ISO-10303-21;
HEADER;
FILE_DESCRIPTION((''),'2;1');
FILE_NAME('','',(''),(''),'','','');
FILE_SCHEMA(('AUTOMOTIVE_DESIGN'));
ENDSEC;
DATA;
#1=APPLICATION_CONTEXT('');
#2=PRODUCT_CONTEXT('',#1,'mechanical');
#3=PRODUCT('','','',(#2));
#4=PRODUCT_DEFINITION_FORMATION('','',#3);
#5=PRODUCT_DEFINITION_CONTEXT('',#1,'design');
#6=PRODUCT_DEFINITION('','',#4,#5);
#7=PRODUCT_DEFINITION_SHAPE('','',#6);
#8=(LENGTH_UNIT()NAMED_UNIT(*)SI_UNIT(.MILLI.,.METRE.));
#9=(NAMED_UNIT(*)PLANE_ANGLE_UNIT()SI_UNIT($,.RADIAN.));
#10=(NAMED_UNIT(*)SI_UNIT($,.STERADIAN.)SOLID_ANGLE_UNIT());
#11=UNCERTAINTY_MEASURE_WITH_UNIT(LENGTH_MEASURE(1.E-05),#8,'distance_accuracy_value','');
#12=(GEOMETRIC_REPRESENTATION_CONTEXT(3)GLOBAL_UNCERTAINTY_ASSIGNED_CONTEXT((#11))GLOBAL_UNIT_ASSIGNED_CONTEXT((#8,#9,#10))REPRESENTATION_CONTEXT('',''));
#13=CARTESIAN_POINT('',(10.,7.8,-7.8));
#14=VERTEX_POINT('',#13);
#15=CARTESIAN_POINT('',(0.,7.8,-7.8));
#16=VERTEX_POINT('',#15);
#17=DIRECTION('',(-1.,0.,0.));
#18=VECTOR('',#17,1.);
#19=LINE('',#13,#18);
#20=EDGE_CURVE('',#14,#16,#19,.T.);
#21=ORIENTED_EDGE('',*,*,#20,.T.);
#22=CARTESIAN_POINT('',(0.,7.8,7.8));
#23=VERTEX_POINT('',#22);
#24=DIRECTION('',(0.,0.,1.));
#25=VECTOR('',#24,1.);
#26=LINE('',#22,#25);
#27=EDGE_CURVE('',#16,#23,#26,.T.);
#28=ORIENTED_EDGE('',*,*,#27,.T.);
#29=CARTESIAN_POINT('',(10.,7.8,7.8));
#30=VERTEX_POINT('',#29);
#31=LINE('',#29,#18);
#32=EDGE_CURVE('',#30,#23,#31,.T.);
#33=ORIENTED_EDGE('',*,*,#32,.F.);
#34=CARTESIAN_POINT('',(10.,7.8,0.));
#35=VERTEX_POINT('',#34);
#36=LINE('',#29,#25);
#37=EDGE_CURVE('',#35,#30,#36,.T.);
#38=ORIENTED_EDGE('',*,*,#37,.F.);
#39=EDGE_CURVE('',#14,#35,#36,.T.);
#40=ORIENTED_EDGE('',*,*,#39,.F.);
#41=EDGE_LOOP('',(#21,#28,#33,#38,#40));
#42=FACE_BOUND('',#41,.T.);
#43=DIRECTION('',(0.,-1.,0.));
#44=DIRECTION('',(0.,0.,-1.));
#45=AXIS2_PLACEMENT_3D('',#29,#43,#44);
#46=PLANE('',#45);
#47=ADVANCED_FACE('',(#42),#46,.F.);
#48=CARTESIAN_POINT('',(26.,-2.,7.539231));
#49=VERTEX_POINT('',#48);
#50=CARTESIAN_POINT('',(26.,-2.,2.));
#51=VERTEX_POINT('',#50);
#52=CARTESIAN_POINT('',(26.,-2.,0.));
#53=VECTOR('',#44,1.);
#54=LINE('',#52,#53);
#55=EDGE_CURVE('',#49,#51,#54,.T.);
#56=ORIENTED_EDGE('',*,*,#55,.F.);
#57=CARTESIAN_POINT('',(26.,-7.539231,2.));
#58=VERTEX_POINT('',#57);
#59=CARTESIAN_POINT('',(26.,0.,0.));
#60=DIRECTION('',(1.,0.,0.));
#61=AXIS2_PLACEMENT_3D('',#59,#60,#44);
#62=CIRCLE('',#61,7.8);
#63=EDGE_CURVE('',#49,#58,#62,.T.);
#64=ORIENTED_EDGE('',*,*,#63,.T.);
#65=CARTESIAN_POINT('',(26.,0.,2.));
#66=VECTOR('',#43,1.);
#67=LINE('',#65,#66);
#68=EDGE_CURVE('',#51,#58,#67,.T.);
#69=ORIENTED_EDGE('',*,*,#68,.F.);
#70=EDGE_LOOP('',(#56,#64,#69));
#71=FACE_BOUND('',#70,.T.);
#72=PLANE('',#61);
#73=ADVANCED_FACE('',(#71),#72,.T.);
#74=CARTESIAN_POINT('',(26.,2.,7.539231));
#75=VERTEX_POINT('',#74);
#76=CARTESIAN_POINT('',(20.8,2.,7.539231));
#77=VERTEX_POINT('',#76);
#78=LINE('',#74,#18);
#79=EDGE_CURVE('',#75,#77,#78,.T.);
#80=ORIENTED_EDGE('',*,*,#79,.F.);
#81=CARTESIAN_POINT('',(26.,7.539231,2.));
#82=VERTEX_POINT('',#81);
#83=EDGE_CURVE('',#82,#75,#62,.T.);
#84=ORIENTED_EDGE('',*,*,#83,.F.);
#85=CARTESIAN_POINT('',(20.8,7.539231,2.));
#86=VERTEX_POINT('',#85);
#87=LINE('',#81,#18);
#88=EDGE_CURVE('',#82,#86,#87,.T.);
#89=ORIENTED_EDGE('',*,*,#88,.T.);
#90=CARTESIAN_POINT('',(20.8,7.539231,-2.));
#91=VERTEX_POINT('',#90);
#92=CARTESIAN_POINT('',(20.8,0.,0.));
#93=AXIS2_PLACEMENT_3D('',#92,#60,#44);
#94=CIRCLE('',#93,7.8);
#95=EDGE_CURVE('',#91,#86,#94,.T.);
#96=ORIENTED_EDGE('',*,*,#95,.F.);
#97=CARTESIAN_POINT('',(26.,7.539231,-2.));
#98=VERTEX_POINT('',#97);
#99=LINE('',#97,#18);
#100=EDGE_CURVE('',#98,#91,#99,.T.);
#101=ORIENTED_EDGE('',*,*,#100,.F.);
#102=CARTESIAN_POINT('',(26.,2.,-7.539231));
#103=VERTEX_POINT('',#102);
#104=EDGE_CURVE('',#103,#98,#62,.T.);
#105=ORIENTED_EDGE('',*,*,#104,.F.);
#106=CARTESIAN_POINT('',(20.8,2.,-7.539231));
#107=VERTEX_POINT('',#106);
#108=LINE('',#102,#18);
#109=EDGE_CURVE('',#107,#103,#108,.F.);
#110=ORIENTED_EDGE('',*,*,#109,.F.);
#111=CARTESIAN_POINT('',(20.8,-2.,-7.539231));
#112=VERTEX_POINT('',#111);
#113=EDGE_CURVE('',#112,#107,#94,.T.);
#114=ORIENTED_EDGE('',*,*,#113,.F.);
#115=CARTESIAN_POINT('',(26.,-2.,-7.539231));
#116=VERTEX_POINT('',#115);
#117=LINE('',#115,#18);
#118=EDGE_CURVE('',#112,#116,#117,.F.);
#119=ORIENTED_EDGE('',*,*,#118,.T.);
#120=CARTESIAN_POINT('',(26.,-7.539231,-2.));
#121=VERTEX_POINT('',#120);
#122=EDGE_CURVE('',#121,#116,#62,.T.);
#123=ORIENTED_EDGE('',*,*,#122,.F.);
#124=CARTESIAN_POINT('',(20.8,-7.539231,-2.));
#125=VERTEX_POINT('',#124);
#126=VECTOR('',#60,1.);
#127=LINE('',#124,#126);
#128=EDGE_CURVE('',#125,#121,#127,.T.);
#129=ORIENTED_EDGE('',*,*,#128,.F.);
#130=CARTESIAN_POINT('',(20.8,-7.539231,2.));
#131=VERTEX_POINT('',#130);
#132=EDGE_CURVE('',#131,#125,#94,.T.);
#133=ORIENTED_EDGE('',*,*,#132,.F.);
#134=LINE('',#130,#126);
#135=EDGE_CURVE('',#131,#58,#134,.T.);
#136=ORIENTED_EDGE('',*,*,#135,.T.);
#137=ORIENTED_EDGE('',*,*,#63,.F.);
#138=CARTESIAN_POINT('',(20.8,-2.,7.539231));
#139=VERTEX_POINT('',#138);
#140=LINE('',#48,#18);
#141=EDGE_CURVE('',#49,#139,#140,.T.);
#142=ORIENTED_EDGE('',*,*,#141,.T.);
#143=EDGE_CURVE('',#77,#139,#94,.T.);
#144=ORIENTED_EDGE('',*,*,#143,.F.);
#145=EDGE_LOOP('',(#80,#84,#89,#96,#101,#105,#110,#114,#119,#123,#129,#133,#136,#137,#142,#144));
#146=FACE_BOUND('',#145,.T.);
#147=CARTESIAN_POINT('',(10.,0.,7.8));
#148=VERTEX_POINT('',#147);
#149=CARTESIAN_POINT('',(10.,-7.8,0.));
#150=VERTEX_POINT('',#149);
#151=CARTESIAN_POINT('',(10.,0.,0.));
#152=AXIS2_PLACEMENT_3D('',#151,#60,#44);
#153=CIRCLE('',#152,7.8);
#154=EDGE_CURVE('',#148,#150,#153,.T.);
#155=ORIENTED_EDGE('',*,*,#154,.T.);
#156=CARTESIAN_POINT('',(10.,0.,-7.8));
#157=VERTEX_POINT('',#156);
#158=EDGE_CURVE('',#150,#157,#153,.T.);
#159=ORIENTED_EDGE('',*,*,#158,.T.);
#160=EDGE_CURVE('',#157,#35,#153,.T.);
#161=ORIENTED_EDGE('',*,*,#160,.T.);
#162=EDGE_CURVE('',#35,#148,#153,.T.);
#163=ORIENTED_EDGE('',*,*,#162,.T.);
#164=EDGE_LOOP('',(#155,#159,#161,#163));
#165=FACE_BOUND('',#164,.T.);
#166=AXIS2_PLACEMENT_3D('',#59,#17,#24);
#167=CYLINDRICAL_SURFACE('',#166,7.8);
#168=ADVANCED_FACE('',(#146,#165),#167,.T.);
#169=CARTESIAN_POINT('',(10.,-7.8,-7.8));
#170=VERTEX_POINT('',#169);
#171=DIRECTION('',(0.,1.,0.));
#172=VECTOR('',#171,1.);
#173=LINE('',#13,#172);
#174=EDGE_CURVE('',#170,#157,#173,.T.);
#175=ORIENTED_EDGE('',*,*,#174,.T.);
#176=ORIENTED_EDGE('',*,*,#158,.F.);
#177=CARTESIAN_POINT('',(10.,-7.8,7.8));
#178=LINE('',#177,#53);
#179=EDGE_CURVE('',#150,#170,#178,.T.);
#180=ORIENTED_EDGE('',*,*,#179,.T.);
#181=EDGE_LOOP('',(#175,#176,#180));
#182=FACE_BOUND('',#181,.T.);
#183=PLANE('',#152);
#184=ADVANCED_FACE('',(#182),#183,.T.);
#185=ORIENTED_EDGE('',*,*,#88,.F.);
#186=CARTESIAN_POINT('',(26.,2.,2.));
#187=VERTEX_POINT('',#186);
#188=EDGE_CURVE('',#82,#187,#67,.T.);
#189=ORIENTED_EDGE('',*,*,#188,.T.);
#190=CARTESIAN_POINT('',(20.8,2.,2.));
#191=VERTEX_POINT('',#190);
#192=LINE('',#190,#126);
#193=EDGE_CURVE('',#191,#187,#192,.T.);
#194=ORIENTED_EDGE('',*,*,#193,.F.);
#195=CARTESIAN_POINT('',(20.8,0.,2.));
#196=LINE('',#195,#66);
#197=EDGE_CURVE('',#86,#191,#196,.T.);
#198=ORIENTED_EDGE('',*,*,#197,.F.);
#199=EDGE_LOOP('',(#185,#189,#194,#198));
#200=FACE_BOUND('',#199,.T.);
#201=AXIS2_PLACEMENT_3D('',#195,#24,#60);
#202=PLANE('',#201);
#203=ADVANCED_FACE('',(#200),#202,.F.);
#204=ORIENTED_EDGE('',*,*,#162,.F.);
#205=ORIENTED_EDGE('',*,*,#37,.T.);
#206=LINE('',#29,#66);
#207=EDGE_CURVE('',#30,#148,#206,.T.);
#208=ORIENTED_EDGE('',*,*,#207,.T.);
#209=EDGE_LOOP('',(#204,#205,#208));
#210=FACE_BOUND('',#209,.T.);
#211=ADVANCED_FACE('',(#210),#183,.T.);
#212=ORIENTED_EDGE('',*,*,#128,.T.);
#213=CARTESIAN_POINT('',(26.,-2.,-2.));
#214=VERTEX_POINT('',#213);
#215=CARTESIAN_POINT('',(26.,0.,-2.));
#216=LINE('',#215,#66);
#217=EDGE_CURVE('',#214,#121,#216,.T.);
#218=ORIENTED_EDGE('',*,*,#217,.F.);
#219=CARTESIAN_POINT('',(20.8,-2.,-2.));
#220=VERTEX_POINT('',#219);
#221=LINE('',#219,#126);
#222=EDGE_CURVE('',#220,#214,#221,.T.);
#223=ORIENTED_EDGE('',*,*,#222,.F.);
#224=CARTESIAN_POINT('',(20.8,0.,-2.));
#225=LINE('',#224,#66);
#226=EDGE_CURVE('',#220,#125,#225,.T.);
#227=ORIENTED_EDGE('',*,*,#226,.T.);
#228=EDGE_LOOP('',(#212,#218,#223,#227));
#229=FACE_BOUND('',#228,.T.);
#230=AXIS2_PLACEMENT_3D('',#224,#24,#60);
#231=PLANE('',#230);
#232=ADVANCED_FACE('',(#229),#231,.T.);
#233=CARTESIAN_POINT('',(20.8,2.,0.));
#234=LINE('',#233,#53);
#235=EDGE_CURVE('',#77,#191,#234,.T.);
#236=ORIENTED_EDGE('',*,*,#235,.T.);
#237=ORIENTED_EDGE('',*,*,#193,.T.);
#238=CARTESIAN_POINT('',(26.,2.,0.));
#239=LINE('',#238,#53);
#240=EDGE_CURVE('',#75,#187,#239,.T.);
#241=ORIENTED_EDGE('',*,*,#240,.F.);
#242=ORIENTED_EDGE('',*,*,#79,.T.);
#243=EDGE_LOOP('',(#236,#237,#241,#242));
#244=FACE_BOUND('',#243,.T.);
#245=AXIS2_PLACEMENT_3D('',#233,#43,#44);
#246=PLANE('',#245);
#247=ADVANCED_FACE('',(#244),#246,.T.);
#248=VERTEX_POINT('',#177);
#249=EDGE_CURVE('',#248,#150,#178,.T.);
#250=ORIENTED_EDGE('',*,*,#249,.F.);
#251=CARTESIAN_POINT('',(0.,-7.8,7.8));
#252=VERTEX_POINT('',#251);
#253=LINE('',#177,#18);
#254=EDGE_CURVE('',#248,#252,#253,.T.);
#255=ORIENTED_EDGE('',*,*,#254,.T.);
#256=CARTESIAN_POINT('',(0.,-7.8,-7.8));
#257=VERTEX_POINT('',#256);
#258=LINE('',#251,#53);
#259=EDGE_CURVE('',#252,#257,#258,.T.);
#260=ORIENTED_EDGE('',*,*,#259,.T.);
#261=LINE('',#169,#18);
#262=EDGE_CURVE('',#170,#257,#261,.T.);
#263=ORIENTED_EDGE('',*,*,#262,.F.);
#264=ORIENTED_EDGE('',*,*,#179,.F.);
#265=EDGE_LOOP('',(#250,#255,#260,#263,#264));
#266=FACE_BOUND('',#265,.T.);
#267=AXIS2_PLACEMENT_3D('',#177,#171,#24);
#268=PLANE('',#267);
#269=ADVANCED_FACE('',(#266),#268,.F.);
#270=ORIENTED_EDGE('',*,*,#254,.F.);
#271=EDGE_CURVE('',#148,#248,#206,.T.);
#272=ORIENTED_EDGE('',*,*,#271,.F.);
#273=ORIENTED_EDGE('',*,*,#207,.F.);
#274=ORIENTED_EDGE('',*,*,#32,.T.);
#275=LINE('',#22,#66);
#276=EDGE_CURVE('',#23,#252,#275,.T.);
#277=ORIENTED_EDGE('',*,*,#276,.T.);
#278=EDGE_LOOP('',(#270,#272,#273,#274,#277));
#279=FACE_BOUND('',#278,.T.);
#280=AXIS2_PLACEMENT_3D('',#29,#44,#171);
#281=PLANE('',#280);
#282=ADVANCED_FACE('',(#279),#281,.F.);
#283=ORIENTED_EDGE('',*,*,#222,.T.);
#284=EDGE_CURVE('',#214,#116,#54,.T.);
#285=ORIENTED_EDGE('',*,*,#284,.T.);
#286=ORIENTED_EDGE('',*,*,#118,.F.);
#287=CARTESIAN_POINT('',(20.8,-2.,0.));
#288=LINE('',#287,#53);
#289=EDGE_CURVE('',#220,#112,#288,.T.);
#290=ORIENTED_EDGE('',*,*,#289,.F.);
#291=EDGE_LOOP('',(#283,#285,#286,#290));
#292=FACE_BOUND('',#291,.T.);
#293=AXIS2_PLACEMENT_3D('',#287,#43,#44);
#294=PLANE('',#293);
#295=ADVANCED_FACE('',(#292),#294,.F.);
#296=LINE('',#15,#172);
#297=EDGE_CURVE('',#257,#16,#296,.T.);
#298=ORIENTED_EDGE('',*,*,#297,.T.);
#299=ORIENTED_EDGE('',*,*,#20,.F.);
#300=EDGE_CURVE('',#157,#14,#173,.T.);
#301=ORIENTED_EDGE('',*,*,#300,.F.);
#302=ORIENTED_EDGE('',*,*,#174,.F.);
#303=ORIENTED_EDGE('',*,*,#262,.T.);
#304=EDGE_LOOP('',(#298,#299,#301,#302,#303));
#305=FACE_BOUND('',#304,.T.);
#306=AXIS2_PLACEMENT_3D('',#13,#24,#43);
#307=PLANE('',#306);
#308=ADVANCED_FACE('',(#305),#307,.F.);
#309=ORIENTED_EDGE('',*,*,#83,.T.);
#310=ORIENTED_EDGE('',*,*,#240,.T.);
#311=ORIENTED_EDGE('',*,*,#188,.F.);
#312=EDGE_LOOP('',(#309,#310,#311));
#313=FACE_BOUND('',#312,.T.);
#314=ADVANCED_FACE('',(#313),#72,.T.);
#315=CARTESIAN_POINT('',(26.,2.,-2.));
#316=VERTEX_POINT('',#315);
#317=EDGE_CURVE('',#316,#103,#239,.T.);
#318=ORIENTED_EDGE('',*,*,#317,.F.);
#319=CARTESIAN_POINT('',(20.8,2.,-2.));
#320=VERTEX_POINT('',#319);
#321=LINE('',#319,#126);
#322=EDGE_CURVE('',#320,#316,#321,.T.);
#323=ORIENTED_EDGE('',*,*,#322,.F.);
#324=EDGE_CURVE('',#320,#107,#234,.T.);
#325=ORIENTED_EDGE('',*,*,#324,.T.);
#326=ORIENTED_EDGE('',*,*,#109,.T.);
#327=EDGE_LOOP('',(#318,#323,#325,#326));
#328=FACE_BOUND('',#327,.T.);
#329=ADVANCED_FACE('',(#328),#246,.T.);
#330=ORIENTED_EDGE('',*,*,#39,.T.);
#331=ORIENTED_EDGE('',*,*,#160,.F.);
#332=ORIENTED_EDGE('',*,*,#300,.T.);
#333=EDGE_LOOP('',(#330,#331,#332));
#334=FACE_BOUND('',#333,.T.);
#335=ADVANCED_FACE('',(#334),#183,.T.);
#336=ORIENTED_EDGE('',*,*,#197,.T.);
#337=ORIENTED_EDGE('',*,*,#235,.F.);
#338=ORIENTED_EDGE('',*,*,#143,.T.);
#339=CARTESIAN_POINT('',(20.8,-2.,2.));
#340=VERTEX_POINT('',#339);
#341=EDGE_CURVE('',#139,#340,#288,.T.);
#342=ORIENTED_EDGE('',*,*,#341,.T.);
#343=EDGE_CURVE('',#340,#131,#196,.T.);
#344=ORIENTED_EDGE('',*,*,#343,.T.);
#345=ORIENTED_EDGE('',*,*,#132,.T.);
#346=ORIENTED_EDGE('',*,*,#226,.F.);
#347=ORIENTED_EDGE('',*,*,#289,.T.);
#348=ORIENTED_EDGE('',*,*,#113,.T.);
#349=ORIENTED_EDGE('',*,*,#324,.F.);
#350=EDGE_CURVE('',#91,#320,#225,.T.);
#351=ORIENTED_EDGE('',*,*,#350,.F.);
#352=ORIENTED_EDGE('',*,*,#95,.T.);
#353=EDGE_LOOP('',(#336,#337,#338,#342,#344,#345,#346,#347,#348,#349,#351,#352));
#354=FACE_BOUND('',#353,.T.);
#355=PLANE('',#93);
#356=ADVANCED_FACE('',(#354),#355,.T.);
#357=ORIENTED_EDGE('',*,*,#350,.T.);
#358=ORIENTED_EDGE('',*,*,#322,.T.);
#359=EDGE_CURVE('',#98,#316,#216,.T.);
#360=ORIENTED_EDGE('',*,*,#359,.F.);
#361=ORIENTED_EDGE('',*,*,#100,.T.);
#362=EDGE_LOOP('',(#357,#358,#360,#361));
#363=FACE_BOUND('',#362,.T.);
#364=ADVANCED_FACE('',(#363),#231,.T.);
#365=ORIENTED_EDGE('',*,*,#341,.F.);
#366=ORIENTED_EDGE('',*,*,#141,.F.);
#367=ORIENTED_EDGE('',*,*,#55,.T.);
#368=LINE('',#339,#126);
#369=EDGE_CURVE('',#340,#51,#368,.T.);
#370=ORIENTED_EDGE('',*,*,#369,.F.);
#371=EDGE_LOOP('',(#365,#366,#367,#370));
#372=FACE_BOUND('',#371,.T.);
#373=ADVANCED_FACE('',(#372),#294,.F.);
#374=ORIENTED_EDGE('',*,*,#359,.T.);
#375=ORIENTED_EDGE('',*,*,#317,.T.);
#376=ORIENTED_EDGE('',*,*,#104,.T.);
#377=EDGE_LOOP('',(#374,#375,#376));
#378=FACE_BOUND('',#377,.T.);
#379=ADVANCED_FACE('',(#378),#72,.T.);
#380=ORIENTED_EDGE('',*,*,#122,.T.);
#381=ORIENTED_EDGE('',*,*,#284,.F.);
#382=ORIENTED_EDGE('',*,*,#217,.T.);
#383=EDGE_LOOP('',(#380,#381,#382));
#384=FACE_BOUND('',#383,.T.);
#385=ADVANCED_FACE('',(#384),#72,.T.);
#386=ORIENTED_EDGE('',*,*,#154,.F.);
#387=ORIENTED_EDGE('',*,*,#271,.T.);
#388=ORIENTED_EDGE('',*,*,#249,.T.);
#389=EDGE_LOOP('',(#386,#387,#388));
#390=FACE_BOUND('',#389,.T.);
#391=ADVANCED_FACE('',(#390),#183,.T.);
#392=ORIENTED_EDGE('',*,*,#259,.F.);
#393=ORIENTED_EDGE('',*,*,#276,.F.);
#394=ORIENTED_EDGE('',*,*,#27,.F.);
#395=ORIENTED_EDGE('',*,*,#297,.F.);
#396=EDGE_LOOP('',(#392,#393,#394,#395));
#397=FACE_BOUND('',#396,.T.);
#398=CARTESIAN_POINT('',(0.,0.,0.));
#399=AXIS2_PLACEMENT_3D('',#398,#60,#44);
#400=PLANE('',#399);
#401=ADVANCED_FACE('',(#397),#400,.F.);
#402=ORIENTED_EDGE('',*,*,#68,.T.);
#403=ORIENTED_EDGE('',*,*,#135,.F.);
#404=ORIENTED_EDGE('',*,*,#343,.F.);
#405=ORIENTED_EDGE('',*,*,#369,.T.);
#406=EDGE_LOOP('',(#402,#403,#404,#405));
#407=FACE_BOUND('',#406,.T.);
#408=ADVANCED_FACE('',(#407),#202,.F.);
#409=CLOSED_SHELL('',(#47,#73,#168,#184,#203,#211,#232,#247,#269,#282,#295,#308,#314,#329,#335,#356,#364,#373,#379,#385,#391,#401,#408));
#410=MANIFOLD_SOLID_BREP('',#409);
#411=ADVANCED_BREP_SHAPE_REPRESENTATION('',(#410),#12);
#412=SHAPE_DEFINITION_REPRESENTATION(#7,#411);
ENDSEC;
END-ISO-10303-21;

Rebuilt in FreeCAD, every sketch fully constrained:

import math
import FreeCAD as App
import Part
import Sketcher
from FreeCAD import Vector

doc = App.newDocument("Part")
body = doc.addObject("PartDesign::Body", "Body")

# Sketch on YZ plane
sketch1 = doc.addObject("Sketcher::SketchObject", "Sketch")
body.addObject(sketch1)
sketch1.AttachmentSupport = (doc.YZ_Plane, [""])
sketch1.MapMode = "FlatFace"
sketch1.addGeometry([
    Part.LineSegment(Vector(8, 8, 0), Vector(-8, 8, 0)),
    Part.LineSegment(Vector(-8, 8, 0), Vector(-8, -8, 0)),
    Part.LineSegment(Vector(-8, -8, 0), Vector(8, -8, 0)),
    Part.LineSegment(Vector(8, -8, 0), Vector(8, 8, 0)),
], False)
sketch1.addConstraint([
    Sketcher.Constraint("Coincident", 0, 2, 1, 1),
    Sketcher.Constraint("Coincident", 1, 2, 2, 1),
    Sketcher.Constraint("Coincident", 2, 2, 3, 1),
    Sketcher.Constraint("Coincident", 3, 2, 0, 1),
    Sketcher.Constraint("Horizontal", 0),
    Sketcher.Constraint("Vertical", 1),
    Sketcher.Constraint("Horizontal", 2),
    Sketcher.Constraint("Vertical", 3),
    Sketcher.Constraint("Symmetric", 0, 2, 2, 2, -1, 1),
    Sketcher.Constraint("Equal", 2, 1),
    Sketcher.Constraint("DistanceX", 0, 2, 0, 1, 15.6),
])
pad1 = doc.addObject("PartDesign::Pad", "Pad")
body.addObject(pad1)
pad1.Profile = sketch1
pad1.Length = 10

# Sketch on YZ plane
sketch2 = doc.addObject("Sketcher::SketchObject", "Sketch001")
body.addObject(sketch2)
sketch2.AttachmentSupport = (doc.YZ_Plane, [""])
sketch2.MapMode = "FlatFace"
sketch2.AttachmentOffset = App.Placement(Vector(0, 0, 10), App.Rotation())
sketch2.addGeometry(Part.Circle(Vector(0, 0, 0), Vector(0, 0, 1), 8), False)
sketch2.addConstraint([
    Sketcher.Constraint("Coincident", 0, 3, -1, 1),
    Sketcher.Constraint("Diameter", 0, 15.6),
])
pad2 = doc.addObject("PartDesign::Pad", "Pad001")
body.addObject(pad2)
pad2.Profile = sketch2
pad2.Length = 16

# Sketch on YZ plane
sketch3 = doc.addObject("Sketcher::SketchObject", "Sketch002")
body.addObject(sketch3)
sketch3.AttachmentSupport = (doc.YZ_Plane, [""])
sketch3.MapMode = "FlatFace"
sketch3.AttachmentOffset = App.Placement(Vector(0, 0, 26), App.Rotation())
sketch3.addGeometry([
    Part.LineSegment(Vector(2, 2, 0), Vector(2, 7.8, 0)),  # 0
    Part.LineSegment(Vector(2, 7.8, 0), Vector(-2, 7.8, 0)),  # 1
    Part.LineSegment(Vector(-2, 7.8, 0), Vector(-2, 2, 0)),  # 2
    Part.LineSegment(Vector(-2, 2, 0), Vector(-7.5, 2, 0)),  # 3
    Part.ArcOfCircle(Part.Circle(Vector(0, 0, 0), Vector(0, 0, 1), 7.8), math.radians(165.14), math.radians(180)),  # 4
    Part.ArcOfCircle(Part.Circle(Vector(0, 0, 0), Vector(0, 0, 1), 7.8), math.radians(180), math.radians(194.86)),  # 5
    Part.LineSegment(Vector(-7.5, -2, 0), Vector(-2, -2, 0)),  # 6
    Part.LineSegment(Vector(-2, -2, 0), Vector(-2, -7.8, 0)),  # 7
    Part.LineSegment(Vector(-2, -7.8, 0), Vector(2, -7.8, 0)),  # 8
    Part.LineSegment(Vector(2, -7.8, 0), Vector(2, -2, 0)),  # 9
    Part.LineSegment(Vector(2, -2, 0), Vector(7.8, -2, 0)),  # 10
    Part.LineSegment(Vector(7.8, -2, 0), Vector(7.8, 2, 0)),  # 11
    Part.LineSegment(Vector(7.8, 2, 0), Vector(2, 2, 0)),  # 12
], False)
sketch3.addConstraint([
    Sketcher.Constraint("Coincident", 0, 2, 1, 1),
    Sketcher.Constraint("Coincident", 1, 2, 2, 1),
    Sketcher.Constraint("Coincident", 2, 2, 3, 1),
    Sketcher.Constraint("Coincident", 3, 2, 4, 1),
    Sketcher.Constraint("Tangent", 4, 2, 5, 1),
    Sketcher.Constraint("Coincident", 5, 2, 6, 1),
    Sketcher.Constraint("Coincident", 6, 2, 7, 1),
    Sketcher.Constraint("Coincident", 7, 2, 8, 1),
    Sketcher.Constraint("Coincident", 8, 2, 9, 1),
    Sketcher.Constraint("Coincident", 9, 2, 10, 1),
    Sketcher.Constraint("Coincident", 10, 2, 11, 1),
    Sketcher.Constraint("Coincident", 11, 2, 12, 1),
    Sketcher.Constraint("Coincident", 12, 2, 0, 1),
    Sketcher.Constraint("Vertical", 0),
    Sketcher.Constraint("Horizontal", 1),
    Sketcher.Constraint("Vertical", 2),
    Sketcher.Constraint("Horizontal", 3),
    Sketcher.Constraint("Horizontal", 6),
    Sketcher.Constraint("Vertical", 7),
    Sketcher.Constraint("Horizontal", 8),
    Sketcher.Constraint("Vertical", 9),
    Sketcher.Constraint("Horizontal", 10),
    Sketcher.Constraint("Vertical", 11),
    Sketcher.Constraint("Horizontal", 12),
    Sketcher.Constraint("Coincident", 4, 3, -1, 1),
    Sketcher.Constraint("Equal", 4, 5),
    Sketcher.Constraint("Symmetric", 0, 2, 7, 2, -1, 1),
    Sketcher.Constraint("Symmetric", 2, 2, 9, 2, -1, 1),
    Sketcher.Constraint("Symmetric", 6, 2, 9, 2, -2),
    Sketcher.Constraint("PointOnObject", 4, 2, -1),
    Sketcher.Constraint("Horizontal", 3, 2, 11, 2),
    Sketcher.Constraint("Equal", 12, 0),
    Sketcher.Constraint("Equal", 8, 11),
    Sketcher.Constraint("Radius", 4, 7.8),
    Sketcher.Constraint("DistanceX", 1, 2, 1, 1, 4.0),
    Sketcher.Constraint("DistanceX", 10, 1, 10, 2, 5.8),
])
pocket1 = doc.addObject("PartDesign::Pocket", "Pocket")
body.addObject(pocket1)
pocket1.Profile = sketch3
pocket1.Length = 5.2

doc.recompute()
